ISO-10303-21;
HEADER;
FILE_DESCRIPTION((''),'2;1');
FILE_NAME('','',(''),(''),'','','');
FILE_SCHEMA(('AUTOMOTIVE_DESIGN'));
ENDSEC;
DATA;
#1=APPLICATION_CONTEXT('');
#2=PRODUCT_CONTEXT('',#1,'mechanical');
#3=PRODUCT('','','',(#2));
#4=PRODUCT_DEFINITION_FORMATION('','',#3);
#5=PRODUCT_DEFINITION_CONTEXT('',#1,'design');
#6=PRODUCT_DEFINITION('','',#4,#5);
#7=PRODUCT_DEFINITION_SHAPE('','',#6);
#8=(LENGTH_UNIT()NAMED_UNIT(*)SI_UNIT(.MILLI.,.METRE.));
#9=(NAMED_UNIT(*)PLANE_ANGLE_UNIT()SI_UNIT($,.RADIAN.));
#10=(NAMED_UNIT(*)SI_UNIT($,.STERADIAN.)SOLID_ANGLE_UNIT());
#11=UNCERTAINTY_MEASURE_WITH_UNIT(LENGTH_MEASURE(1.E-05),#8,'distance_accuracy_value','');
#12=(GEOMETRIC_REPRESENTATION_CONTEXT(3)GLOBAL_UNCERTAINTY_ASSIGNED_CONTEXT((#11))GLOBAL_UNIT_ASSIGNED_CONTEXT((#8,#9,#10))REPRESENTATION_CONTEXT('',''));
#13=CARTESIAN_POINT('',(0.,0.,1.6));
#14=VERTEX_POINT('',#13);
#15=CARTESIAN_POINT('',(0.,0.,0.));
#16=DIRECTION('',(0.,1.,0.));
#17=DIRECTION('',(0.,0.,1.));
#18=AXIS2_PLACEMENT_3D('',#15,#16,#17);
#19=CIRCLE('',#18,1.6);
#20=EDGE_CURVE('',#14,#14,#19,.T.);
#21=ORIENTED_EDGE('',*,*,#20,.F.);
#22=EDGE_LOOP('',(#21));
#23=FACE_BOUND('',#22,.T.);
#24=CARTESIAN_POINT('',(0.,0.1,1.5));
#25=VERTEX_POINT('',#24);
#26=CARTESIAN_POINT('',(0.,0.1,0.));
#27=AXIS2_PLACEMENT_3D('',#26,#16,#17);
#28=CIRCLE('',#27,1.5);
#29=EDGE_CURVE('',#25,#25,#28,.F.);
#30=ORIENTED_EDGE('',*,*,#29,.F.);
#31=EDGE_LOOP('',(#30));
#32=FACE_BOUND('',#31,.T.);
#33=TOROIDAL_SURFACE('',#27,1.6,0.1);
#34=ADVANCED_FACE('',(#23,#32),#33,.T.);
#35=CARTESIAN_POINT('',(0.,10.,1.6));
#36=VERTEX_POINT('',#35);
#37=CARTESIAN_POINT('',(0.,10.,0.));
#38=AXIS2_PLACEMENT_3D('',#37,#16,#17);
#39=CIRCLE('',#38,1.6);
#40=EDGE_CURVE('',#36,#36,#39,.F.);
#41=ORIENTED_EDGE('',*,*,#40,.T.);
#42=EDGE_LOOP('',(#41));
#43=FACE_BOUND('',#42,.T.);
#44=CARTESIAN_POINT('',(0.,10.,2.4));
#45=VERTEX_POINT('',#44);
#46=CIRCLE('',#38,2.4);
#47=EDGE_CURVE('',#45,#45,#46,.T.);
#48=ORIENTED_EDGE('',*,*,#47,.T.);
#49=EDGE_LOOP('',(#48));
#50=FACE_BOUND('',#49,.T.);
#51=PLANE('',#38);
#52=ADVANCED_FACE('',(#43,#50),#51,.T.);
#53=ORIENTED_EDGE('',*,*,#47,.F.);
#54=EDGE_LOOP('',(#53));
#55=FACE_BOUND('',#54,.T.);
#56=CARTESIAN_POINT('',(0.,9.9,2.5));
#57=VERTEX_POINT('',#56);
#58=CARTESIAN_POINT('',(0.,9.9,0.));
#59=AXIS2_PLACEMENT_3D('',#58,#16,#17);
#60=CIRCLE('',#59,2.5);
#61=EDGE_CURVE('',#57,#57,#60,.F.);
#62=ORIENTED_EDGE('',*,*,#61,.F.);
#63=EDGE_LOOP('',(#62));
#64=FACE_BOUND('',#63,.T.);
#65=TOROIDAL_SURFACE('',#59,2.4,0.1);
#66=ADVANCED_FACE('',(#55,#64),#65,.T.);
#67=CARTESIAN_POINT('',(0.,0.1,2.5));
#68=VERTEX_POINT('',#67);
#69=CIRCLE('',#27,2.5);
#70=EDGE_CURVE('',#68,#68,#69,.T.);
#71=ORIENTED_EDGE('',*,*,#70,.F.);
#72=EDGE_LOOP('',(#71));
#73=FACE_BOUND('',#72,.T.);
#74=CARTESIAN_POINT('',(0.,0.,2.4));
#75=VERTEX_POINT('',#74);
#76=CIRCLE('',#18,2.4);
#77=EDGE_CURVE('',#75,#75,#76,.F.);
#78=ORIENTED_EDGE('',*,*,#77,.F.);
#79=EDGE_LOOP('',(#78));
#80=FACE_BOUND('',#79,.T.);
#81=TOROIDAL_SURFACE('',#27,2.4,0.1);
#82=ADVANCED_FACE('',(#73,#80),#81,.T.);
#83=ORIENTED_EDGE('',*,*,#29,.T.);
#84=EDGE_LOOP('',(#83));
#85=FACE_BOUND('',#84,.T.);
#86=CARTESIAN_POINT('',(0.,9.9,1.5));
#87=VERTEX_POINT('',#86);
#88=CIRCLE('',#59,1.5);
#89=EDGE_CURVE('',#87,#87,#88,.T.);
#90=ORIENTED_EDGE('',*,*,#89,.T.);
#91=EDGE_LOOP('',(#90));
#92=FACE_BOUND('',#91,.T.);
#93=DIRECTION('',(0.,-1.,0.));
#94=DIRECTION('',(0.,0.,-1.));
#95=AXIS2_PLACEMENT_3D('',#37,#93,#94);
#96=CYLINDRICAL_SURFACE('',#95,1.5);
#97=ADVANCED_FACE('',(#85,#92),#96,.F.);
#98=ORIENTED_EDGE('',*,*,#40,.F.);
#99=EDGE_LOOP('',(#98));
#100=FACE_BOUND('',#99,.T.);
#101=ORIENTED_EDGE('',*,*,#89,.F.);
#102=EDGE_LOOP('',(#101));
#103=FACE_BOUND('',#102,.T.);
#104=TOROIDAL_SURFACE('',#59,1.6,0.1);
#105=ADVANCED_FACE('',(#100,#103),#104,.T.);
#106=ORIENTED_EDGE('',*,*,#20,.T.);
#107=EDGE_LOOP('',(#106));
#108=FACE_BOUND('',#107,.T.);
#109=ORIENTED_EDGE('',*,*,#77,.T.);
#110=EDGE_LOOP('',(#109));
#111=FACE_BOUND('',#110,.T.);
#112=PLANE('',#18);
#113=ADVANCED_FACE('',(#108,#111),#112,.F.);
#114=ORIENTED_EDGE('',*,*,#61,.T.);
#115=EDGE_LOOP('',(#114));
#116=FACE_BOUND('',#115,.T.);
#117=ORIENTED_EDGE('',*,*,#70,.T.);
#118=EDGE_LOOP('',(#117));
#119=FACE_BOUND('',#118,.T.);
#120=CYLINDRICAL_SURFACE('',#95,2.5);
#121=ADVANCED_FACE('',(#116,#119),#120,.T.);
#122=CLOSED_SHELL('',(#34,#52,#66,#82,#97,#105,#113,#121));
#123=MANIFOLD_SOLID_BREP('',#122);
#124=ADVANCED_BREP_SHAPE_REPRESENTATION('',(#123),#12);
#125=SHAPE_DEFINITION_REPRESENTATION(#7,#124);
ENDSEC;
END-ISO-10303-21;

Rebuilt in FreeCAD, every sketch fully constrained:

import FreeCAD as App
import Part
import Sketcher

V = App.Vector
Q = App.Units.Quantity


def edges_at(feature, points):
    """Names of the edges that pass closest to the given points."""
    edges = feature.Shape.Edges
    near = lambda p: min(range(len(edges)), key=lambda i: edges[i].distToShape(Part.Vertex(*p))[0])
    return sorted({f"Edge{near(p) + 1}" for p in points})

doc = App.newDocument("Part")
body = doc.addObject("PartDesign::Body", "Body")

sketch1 = body.newObject("Sketcher::SketchObject", "Sketch")
sketch1.AttachmentSupport = (doc.getObject("XZ_Plane"), [""])
sketch1.MapMode = "FlatFace"
sketch1.addGeometry([
    Part.Circle(V(0, 0, 0), V(0, 0, 1), 2.5),
    Part.Circle(V(0, 0, 0), V(0, 0, 1), 1.5),
], False)
sketch1.addConstraint([
    Sketcher.Constraint("Coincident", 0, 3, -1, 1),
    Sketcher.Constraint("Coincident", 1, 3, -1, 1),
    Sketcher.Constraint("Diameter", 0, Q("5 mm")),
    Sketcher.Constraint("Diameter", 1, Q("3 mm")),
])
pad1 = body.newObject("PartDesign::Pad", "Pad")
pad1.Profile = sketch1
pad1.Length = 10
pad1.Reversed = True
doc.recompute()

fillet = body.newObject("PartDesign::Fillet", "Fillet")
fillet.Base = (pad1, edges_at(pad1, [
    (0, 0, -2.5),
    (0, 10, -2.5),
    (0, 0, -1.5),
    (0, 10, -1.5),
]))
fillet.Radius = 0.1

doc.recompute()
